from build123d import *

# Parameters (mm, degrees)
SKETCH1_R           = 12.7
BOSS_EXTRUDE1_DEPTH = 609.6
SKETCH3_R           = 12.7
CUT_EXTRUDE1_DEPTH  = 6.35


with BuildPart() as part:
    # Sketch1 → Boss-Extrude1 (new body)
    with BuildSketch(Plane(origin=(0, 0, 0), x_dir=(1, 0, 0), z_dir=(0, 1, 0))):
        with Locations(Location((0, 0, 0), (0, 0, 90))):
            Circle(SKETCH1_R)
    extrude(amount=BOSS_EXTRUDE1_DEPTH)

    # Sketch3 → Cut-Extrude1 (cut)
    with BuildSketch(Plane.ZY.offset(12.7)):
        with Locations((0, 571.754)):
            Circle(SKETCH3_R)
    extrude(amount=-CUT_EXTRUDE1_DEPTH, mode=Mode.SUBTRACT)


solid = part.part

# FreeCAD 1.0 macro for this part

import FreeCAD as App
import Part
import Sketcher
Q = App.Units.Quantity

doc = App.newDocument("Part")
body = doc.addObject("PartDesign::Body", "Body")

# Sketch on XZ plane
sketch1 = doc.addObject("Sketcher::SketchObject", "Sketch")
body.addObject(sketch1)
sketch1.AttachmentSupport = (doc.XZ_Plane, [""])
sketch1.MapMode = "FlatFace"
sketch1.addGeometry(Part.Circle(App.Vector(0, 0, 0), App.Vector(0, 0, 1), 13), False)
sketch1.addConstraint([
    Sketcher.Constraint("Coincident", 0, 3, -1, 1),
    Sketcher.Constraint("Diameter", 0, Q("1 in")),
])
pad1 = doc.addObject("PartDesign::Pad", "Pad")
body.addObject(pad1)
pad1.Profile = sketch1
pad1.Length = Q("24 in")
pad1.Reversed = True

# Sketch on YZ plane
sketch2 = doc.addObject("Sketcher::SketchObject", "Sketch001")
body.addObject(sketch2)
sketch2.AttachmentSupport = (doc.YZ_Plane, [""])
sketch2.MapMode = "FlatFace"
sketch2.AttachmentOffset = App.Placement(App.Vector(0, 0, -0.5 * 25.4), App.Rotation())
sketch2.addGeometry(Part.Circle(App.Vector(572, 0, 0), App.Vector(0, 0, 1), 13), False)
sketch2.addConstraint([
    Sketcher.Constraint("PointOnObject", 0, 3, -1),
    Sketcher.Constraint("Diameter", 0, Q("1 in")),
    Sketcher.Constraint("DistanceX", -1, 1, 0, 3, Q("22.51 in")),
])
pocket1 = doc.addObject("PartDesign::Pocket", "Pocket")
body.addObject(pocket1)
pocket1.Profile = sketch2
pocket1.Length = Q("0.25 in")
pocket1.Reversed = True

doc.recompute()
